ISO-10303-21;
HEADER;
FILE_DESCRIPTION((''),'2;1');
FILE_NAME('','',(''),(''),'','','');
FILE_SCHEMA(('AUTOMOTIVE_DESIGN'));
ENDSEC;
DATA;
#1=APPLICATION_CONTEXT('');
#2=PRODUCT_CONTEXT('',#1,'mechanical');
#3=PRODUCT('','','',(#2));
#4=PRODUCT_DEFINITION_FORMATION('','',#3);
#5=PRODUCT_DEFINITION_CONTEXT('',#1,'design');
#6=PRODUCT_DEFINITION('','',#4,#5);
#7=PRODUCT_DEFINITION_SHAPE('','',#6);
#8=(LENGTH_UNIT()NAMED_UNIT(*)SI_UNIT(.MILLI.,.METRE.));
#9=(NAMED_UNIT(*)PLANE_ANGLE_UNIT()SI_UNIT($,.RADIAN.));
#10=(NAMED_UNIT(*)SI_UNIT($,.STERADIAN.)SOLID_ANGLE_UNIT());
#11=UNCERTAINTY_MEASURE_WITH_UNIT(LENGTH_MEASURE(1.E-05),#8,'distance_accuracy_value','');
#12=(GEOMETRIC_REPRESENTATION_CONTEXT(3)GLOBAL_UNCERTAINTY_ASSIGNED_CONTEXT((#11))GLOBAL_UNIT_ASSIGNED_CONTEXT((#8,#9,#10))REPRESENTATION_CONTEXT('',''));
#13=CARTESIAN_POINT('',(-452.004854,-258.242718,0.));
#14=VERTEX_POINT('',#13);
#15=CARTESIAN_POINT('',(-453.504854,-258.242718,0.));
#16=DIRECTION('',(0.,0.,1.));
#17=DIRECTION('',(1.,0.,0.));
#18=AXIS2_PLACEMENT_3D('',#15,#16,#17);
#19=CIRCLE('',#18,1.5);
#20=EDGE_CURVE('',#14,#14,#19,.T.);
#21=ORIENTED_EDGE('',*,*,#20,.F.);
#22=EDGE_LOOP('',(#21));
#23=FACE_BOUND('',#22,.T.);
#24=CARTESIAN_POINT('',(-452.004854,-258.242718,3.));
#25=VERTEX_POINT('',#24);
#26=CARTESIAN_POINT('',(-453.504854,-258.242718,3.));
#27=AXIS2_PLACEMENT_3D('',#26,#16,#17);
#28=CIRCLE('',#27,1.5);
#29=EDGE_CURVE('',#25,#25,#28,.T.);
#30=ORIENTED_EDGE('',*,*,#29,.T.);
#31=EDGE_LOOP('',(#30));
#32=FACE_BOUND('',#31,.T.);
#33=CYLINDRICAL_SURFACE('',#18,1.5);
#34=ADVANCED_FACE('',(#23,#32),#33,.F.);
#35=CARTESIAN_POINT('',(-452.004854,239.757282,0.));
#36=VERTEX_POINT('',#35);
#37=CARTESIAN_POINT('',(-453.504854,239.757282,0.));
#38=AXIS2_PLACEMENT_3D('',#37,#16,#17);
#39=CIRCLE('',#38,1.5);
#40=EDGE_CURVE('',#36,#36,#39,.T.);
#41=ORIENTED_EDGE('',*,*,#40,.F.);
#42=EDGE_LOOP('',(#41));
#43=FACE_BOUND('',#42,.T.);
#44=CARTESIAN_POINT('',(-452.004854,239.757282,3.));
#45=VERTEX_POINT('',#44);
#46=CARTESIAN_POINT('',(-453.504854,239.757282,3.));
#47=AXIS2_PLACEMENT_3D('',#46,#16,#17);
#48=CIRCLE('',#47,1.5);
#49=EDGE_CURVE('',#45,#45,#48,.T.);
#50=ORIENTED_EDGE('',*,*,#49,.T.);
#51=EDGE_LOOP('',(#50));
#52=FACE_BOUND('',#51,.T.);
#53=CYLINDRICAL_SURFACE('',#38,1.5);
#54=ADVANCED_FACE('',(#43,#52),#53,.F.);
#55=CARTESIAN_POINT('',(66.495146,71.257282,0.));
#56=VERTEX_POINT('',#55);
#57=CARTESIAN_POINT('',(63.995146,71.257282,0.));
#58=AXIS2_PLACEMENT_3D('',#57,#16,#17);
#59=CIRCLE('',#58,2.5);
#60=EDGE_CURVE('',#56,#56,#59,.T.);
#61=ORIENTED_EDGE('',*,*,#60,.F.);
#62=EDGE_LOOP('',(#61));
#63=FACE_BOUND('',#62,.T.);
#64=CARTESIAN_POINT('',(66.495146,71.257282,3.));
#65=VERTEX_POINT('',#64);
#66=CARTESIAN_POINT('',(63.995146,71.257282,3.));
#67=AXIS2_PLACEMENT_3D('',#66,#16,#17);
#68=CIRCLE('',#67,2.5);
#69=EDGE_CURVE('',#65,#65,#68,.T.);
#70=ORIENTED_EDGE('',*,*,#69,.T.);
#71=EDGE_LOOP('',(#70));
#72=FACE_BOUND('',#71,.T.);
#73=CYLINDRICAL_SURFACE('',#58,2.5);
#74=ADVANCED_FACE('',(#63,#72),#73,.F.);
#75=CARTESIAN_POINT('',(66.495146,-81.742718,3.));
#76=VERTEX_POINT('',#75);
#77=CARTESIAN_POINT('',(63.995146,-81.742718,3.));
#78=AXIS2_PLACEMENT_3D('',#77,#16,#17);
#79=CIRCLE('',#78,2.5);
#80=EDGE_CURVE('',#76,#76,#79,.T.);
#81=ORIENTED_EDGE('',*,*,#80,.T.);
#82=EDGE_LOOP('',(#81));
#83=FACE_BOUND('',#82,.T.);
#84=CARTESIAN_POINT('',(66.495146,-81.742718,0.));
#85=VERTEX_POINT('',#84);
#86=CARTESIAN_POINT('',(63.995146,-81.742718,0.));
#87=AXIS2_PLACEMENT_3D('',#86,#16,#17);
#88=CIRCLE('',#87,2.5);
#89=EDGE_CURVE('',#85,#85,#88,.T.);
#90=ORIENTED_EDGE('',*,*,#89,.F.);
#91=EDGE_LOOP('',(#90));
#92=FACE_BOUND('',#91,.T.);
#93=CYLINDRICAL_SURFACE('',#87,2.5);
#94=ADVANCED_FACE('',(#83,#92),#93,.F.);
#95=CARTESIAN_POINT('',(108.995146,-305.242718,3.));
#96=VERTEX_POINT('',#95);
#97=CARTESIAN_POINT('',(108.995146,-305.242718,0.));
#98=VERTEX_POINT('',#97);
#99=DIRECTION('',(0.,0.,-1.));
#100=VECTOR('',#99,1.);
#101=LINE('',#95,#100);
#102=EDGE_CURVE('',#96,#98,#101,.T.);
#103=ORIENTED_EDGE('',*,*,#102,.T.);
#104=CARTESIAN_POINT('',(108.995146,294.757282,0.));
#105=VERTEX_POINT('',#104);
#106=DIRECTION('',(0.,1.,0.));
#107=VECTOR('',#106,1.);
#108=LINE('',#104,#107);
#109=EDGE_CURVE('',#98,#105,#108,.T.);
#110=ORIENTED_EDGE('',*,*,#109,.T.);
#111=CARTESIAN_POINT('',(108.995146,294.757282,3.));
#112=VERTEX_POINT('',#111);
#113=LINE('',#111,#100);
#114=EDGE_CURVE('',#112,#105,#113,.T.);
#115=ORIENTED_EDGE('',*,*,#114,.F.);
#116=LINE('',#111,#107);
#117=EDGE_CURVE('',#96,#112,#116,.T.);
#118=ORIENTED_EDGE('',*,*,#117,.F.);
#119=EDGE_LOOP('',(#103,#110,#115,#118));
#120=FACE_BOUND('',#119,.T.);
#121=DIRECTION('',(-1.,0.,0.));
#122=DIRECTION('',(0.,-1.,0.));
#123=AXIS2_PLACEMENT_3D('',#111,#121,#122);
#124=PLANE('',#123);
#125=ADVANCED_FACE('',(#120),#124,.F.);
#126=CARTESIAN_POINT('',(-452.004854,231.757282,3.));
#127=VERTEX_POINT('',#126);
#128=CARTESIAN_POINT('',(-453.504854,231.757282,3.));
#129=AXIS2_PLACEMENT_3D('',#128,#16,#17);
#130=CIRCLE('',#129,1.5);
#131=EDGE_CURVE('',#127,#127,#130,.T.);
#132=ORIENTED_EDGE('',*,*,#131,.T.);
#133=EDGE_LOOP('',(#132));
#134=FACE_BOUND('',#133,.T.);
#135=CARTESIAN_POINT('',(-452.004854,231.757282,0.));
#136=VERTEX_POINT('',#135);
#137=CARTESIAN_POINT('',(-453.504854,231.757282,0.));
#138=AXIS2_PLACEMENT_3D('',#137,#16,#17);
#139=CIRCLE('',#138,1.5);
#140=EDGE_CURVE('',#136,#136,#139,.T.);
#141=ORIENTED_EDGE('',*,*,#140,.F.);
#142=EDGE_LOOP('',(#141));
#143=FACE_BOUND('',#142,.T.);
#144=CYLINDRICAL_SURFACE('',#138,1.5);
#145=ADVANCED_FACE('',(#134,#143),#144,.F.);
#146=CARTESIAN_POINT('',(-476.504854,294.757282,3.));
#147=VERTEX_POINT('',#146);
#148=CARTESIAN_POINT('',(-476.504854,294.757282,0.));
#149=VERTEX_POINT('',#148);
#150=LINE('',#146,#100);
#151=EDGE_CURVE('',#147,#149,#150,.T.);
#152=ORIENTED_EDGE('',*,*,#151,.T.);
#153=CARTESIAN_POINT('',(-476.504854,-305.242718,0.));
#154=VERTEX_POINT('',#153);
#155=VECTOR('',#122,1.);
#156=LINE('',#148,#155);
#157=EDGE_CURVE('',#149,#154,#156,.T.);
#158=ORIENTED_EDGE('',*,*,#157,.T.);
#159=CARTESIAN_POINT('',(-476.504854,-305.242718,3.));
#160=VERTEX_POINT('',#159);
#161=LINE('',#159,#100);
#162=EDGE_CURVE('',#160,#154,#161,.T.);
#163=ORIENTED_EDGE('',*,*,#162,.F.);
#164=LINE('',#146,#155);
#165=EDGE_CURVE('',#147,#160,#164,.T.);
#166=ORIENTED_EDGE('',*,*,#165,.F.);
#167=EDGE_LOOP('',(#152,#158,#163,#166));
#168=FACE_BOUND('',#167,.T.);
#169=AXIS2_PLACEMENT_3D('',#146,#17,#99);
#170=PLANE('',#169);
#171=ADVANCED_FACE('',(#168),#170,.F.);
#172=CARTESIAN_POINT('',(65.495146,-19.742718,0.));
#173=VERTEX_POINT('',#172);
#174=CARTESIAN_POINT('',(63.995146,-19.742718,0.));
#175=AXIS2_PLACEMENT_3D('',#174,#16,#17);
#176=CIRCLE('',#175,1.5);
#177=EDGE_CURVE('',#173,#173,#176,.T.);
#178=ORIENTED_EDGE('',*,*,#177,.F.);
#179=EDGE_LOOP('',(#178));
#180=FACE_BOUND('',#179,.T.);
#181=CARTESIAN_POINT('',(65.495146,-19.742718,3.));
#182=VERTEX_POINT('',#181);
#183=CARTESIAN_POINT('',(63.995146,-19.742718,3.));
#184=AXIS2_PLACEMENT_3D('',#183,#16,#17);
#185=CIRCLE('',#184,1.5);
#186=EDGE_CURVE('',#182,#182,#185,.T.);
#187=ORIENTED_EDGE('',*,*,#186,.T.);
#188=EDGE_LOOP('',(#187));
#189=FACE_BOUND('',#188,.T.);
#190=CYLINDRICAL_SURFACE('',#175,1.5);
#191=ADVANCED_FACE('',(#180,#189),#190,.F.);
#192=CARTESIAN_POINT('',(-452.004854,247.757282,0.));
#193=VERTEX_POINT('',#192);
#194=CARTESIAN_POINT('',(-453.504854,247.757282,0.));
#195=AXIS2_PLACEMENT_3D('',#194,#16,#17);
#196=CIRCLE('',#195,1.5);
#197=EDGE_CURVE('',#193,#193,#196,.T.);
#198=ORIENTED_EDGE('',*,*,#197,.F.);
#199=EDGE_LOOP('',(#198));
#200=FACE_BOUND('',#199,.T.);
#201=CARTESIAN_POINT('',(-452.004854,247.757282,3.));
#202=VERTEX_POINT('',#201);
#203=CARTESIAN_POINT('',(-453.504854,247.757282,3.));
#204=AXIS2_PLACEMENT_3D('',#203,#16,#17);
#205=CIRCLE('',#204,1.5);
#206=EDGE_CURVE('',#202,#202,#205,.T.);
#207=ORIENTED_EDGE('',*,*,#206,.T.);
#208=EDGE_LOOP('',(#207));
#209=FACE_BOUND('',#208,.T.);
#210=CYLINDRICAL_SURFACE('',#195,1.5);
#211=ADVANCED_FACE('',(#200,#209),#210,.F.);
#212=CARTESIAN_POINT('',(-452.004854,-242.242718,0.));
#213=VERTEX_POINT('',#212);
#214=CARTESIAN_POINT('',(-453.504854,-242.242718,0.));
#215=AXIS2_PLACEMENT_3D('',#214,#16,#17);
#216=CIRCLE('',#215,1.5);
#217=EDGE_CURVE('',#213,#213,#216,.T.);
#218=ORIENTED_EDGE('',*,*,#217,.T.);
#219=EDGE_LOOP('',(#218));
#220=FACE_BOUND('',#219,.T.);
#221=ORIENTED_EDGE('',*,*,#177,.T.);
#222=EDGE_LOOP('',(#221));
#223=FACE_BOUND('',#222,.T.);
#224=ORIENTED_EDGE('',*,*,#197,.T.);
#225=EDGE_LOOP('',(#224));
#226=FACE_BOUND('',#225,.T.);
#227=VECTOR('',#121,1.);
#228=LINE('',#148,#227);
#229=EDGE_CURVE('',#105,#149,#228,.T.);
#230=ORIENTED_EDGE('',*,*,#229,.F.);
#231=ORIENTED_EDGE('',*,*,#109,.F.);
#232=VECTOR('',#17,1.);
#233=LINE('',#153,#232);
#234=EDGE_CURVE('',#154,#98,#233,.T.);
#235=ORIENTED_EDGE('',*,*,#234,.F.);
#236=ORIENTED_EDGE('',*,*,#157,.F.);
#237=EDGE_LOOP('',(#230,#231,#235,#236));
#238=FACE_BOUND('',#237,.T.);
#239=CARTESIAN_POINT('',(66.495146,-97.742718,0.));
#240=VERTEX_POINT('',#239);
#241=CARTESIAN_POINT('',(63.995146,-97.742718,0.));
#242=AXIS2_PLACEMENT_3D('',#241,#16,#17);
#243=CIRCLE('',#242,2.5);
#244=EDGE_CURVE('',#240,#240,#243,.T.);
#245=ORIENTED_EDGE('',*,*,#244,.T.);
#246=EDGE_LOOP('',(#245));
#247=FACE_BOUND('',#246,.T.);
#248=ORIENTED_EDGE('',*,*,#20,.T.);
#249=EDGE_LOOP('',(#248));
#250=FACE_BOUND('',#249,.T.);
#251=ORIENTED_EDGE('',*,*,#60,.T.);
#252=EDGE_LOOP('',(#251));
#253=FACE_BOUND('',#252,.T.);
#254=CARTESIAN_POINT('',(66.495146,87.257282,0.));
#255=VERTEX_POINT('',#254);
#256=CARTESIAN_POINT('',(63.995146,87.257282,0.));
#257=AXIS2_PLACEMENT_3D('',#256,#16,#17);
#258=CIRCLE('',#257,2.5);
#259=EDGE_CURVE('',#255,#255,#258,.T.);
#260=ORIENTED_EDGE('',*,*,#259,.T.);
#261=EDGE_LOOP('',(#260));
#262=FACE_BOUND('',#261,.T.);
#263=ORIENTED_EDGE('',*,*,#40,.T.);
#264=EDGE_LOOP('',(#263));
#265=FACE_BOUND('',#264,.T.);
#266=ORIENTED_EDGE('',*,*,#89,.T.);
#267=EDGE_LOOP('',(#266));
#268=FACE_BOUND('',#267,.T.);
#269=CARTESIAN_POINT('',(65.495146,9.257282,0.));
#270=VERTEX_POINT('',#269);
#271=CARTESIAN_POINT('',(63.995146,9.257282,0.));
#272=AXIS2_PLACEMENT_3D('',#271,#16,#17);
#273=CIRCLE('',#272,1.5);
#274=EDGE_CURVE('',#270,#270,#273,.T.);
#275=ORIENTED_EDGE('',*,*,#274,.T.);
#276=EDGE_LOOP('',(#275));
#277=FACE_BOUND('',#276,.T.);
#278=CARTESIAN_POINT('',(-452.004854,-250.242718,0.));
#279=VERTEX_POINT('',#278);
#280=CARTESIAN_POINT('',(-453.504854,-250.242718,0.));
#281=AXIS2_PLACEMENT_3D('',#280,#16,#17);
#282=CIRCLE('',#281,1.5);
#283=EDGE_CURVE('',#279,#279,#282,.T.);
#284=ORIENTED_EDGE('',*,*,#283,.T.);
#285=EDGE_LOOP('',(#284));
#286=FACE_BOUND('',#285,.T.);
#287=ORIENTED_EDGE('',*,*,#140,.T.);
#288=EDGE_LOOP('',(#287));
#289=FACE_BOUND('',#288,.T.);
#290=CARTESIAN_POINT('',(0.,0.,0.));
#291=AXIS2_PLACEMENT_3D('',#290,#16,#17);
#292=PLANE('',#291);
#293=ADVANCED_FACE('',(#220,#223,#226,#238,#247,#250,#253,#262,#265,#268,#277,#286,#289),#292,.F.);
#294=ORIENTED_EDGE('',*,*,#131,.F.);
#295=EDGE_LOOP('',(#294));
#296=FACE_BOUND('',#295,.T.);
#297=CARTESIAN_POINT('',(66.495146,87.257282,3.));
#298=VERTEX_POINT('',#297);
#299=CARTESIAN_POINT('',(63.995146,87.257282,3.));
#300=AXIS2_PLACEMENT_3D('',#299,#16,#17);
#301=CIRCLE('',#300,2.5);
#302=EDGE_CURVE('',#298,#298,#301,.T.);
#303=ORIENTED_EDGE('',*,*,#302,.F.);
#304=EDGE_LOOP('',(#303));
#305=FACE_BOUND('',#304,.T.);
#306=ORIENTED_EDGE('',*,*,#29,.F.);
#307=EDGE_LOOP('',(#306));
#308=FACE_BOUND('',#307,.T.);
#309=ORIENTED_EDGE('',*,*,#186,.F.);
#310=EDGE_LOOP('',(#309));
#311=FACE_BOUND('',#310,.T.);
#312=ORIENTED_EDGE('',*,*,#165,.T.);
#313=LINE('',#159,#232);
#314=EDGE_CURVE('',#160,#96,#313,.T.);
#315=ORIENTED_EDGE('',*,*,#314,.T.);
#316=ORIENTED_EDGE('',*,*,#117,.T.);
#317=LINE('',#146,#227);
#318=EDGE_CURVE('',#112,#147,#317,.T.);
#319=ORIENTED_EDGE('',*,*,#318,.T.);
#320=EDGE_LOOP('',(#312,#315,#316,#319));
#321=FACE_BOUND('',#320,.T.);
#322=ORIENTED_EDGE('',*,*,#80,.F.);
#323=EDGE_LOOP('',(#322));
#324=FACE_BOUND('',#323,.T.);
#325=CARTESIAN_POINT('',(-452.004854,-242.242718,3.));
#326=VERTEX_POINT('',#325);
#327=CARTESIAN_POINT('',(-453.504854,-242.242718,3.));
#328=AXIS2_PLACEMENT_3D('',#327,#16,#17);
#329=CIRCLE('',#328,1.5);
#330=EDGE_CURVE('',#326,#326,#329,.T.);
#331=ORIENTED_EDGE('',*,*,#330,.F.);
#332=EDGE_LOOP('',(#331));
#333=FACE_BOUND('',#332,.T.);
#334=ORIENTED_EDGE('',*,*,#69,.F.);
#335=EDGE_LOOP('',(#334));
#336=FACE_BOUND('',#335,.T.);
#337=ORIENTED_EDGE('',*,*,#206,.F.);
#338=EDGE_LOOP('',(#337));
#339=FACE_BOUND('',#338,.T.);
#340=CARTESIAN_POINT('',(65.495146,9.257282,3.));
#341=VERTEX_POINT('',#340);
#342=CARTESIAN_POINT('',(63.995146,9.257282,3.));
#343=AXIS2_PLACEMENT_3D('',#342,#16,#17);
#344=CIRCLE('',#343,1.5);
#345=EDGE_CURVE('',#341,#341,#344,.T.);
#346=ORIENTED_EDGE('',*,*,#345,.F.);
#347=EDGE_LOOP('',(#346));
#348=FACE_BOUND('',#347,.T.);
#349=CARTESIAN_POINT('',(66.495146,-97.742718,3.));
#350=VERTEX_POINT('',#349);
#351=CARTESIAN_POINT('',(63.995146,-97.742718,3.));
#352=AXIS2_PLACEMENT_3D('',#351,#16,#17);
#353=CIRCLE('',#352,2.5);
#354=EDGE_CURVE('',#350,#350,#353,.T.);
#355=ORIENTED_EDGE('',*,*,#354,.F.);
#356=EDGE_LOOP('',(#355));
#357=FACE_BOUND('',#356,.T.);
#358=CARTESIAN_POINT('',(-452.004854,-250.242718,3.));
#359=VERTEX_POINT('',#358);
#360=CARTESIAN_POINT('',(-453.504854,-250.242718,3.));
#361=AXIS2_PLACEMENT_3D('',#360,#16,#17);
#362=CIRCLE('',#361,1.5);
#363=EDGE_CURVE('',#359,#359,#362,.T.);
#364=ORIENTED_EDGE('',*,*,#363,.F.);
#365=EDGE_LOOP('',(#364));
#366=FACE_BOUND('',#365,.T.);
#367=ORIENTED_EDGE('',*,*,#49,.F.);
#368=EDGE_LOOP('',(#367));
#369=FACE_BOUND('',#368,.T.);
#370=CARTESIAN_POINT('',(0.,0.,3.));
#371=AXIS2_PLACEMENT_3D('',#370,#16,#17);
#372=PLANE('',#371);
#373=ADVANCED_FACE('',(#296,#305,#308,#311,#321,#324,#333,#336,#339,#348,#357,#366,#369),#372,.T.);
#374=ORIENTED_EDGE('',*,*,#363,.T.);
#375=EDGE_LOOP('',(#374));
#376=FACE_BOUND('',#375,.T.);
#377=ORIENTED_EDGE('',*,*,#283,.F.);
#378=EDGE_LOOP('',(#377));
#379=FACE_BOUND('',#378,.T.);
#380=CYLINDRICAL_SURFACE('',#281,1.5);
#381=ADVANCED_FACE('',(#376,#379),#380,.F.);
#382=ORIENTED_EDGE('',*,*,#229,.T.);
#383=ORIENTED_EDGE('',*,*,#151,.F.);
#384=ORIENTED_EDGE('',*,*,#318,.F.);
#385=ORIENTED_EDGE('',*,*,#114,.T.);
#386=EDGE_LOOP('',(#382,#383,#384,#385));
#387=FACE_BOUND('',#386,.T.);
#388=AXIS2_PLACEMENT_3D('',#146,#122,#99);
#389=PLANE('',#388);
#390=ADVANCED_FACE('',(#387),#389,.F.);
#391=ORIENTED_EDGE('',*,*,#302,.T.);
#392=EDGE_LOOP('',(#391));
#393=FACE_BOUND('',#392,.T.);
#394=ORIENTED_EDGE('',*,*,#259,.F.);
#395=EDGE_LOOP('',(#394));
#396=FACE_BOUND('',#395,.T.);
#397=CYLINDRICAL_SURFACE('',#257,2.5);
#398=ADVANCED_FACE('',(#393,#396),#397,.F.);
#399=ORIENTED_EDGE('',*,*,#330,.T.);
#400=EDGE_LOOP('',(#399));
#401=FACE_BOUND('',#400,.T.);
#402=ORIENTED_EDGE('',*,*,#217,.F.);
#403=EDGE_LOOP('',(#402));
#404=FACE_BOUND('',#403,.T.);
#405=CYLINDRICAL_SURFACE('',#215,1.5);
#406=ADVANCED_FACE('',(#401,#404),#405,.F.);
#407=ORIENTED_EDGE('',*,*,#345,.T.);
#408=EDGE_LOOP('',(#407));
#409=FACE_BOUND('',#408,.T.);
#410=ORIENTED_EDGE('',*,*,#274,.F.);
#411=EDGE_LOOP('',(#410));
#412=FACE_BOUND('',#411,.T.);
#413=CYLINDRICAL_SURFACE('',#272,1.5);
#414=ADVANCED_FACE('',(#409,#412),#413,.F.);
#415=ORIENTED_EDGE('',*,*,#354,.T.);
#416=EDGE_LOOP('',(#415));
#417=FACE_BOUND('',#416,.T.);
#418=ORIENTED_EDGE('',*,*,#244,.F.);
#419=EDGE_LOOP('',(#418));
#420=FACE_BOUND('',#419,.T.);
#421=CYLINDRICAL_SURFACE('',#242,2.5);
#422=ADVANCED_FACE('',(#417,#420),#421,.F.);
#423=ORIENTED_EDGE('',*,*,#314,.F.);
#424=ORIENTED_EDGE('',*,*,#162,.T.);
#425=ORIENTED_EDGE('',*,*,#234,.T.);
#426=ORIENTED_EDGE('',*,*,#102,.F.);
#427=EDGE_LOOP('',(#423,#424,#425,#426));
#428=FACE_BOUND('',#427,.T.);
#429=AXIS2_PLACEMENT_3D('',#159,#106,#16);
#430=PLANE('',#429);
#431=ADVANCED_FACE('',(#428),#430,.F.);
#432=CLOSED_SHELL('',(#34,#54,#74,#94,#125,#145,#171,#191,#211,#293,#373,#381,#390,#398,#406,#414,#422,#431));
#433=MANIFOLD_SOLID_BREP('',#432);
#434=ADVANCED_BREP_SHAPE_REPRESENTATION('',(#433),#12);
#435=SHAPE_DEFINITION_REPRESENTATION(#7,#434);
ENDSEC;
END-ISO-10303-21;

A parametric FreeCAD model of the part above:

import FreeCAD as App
import Part
import Sketcher
from FreeCAD import Vector

doc = App.newDocument("Part")
body = doc.addObject("PartDesign::Body", "Body")

# Sketch on XY plane
sketch1 = body.newObject("Sketcher::SketchObject", "Sketch")
sketch1.AttachmentSupport = (doc.getObject("XY_Plane"), [""])
sketch1.MapMode = "FlatFace"
sketch1.addGeometry([
    Part.LineSegment(Vector(-477, 295, 0), Vector(-477, -305, 0)),
    Part.LineSegment(Vector(-477, -305, 0), Vector(109, -305, 0)),
    Part.LineSegment(Vector(109, -305, 0), Vector(109, 295, 0)),
    Part.LineSegment(Vector(109, 295, 0), Vector(-477, 295, 0)),
], False)
sketch1.addConstraint([
    Sketcher.Constraint("Coincident", 0, 2, 1, 1),
    Sketcher.Constraint("Coincident", 1, 2, 2, 1),
    Sketcher.Constraint("Coincident", 2, 2, 3, 1),
    Sketcher.Constraint("Coincident", 3, 2, 0, 1),
    Sketcher.Constraint("Vertical", 0),
    Sketcher.Constraint("Horizontal", 1),
    Sketcher.Constraint("Vertical", 2),
    Sketcher.Constraint("Horizontal", 3),
    Sketcher.Constraint("DistanceY", 0, 2, 0, 1, 600.0),
    Sketcher.Constraint("DistanceX", 1, 1, 1, 2, 585.5),
    Sketcher.Constraint("DistanceY", 0, 2, -1, 1, 305.242718),
    Sketcher.Constraint("DistanceX", 0, 2, -1, 1, 476.504854),
])
pad1 = body.newObject("PartDesign::Pad", "Pad")
pad1.Profile = sketch1
pad1.Length = 3

# Sketch on XY plane
sketch2 = body.newObject("Sketcher::SketchObject", "Sketch001")
sketch2.AttachmentSupport = (doc.getObject("XY_Plane"), [""])
sketch2.MapMode = "FlatFace"
sketch2.AttachmentOffset = App.Placement(Vector(0, 0, 3), App.Rotation())
sketch2.addGeometry([
    Part.Circle(Vector(-453.5, 247.8, 0), Vector(0, 0, 1), 1.5),  # 0
    Part.Circle(Vector(-453.5, 239.8, 0), Vector(0, 0, 1), 1.5),  # 1
    Part.Circle(Vector(-453.5, 231.8, 0), Vector(0, 0, 1), 1.5),  # 2
    Part.Circle(Vector(-453.5, -242.2, 0), Vector(0, 0, 1), 1.5),  # 3
    Part.Circle(Vector(-453.5, -250.2, 0), Vector(0, 0, 1), 1.5),  # 4
    Part.Circle(Vector(-453.5, -258.2, 0), Vector(0, 0, 1), 1.5),  # 5
], False)
sketch2.addConstraint([
    Sketcher.Constraint("Equal", 0, 1),
    Sketcher.Constraint("Equal", 1, 2),
    Sketcher.Constraint("Equal", 2, 3),
    Sketcher.Constraint("Equal", 3, 4),
    Sketcher.Constraint("Equal", 4, 5),
    Sketcher.Constraint("Vertical", 0, 3, 1, 3),
    Sketcher.Constraint("Vertical", 1, 3, 2, 3),
    Sketcher.Constraint("Vertical", 2, 3, 3, 3),
    Sketcher.Constraint("Vertical", 3, 3, 4, 3),
    Sketcher.Constraint("Vertical", 4, 3, 5, 3),
    Sketcher.Constraint("Diameter", 0, 3.0),
    Sketcher.Constraint("DistanceY", 1, 3, 0, 3, 8.0),
    Sketcher.Constraint("DistanceY", 2, 3, 1, 3, 8.0),
    Sketcher.Constraint("DistanceY", 3, 3, 2, 3, 474.0),
    Sketcher.Constraint("DistanceY", 4, 3, 3, 3, 8.0),
    Sketcher.Constraint("DistanceY", 5, 3, 4, 3, 8.0),
    Sketcher.Constraint("DistanceY", -1, 1, 0, 3, 247.757282),
    Sketcher.Constraint("DistanceX", 0, 3, -1, 1, 453.504854),
])
pocket1 = body.newObject("PartDesign::Pocket", "Pocket")
pocket1.Profile = sketch2
pocket1.Type = "ThroughAll"

# Sketch on XY plane
sketch3 = body.newObject("Sketcher::SketchObject", "Sketch002")
sketch3.AttachmentSupport = (doc.getObject("XY_Plane"), [""])
sketch3.MapMode = "FlatFace"
sketch3.AttachmentOffset = App.Placement(Vector(0, 0, 3), App.Rotation())
sketch3.addGeometry([
    Part.Circle(Vector(64, 87.3, 0), Vector(0, 0, 1), 2.5),  # 0
    Part.Circle(Vector(64, 71.3, 0), Vector(0, 0, 1), 2.5),  # 1
    Part.Circle(Vector(64, -81.7, 0), Vector(0, 0, 1), 2.5),  # 2
    Part.Circle(Vector(64, -97.7, 0), Vector(0, 0, 1), 2.5),  # 3
    Part.Circle(Vector(64, 9.3, 0), Vector(0, 0, 1), 1.5),  # 4
    Part.Circle(Vector(64, -19.7, 0), Vector(0, 0, 1), 1.5),  # 5
], False)
sketch3.addConstraint([
    Sketcher.Constraint("Equal", 0, 1),
    Sketcher.Constraint("Equal", 1, 2),
    Sketcher.Constraint("Equal", 2, 3),
    Sketcher.Constraint("Equal", 4, 5),
    Sketcher.Constraint("Vertical", 0, 3, 1, 3),
    Sketcher.Constraint("Vertical", 1, 3, 2, 3),
    Sketcher.Constraint("Vertical", 2, 3, 3, 3),
    Sketcher.Constraint("Vertical", 3, 3, 4, 3),
    Sketcher.Constraint("Vertical", 4, 3, 5, 3),
    Sketcher.Constraint("Diameter", 0, 5.0),
    Sketcher.Constraint("Diameter", 4, 3.0),
    Sketcher.Constraint("DistanceY", 1, 3, 0, 3, 16.0),
    Sketcher.Constraint("DistanceY", 2, 3, 1, 3, 153.0),
    Sketcher.Constraint("DistanceY", 3, 3, 2, 3, 16.0),
    Sketcher.Constraint("DistanceY", 4, 3, 1, 3, 62.0),
    Sketcher.Constraint("DistanceY", 5, 3, 4, 3, 29.0),
    Sketcher.Constraint("DistanceY", -1, 1, 0, 3, 87.257282),
    Sketcher.Constraint("DistanceX", -1, 1, 0, 3, 63.995146),
])
pocket2 = body.newObject("PartDesign::Pocket", "Pocket001")
pocket2.Profile = sketch3
pocket2.Type = "ThroughAll"

doc.recompute()
